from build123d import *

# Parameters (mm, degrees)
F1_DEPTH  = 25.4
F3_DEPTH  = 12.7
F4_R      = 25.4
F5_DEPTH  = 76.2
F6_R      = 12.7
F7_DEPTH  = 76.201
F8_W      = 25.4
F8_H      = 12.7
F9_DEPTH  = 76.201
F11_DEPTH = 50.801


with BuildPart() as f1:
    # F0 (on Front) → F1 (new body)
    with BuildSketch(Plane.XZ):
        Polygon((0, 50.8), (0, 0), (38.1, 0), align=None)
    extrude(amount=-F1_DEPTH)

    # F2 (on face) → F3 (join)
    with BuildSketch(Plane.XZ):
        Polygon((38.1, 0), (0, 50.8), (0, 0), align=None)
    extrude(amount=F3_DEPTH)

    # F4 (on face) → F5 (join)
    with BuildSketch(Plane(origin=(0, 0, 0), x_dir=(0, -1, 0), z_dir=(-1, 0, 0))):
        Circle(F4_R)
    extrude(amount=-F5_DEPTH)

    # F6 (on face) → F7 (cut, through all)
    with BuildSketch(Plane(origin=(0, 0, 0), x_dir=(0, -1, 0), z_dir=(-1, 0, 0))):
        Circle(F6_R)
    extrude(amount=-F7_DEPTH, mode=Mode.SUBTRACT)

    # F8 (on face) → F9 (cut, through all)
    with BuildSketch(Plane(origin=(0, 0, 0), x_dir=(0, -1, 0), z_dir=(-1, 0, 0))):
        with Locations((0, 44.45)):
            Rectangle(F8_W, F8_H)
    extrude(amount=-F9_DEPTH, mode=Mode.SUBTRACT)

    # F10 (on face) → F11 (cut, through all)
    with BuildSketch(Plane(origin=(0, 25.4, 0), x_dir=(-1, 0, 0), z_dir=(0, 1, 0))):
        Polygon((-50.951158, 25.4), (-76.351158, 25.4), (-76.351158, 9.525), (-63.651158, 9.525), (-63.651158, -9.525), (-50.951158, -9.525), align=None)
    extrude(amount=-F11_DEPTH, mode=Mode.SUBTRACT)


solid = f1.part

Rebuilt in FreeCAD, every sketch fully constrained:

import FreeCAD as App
import Part
import Sketcher

V = App.Vector
Q = App.Units.Quantity

doc = App.newDocument("Part")
body = doc.addObject("PartDesign::Body", "Body")

sketch1 = body.newObject("Sketcher::SketchObject", "Sketch")
sketch1.AttachmentSupport = (doc.getObject("XZ_Plane"), [""])
sketch1.MapMode = "FlatFace"
sketch1.addGeometry(Part.LineSegment(V(0, 51, 0), V(0, 0, 0)), False)
sketch1.addGeometry(Part.LineSegment(V(0, 0, 0), V(38, 0, 0)), False)
sketch1.addGeometry(Part.LineSegment(V(38, 0, 0), V(0, 51, 0)), False)
sketch1.addConstraint(Sketcher.Constraint("Coincident", 0, 2, 1, 1))
sketch1.addConstraint(Sketcher.Constraint("Coincident", 1, 2, 2, 1))
sketch1.addConstraint(Sketcher.Constraint("Coincident", 2, 2, 0, 1))
sketch1.addConstraint(Sketcher.Constraint("Vertical", 0))
sketch1.addConstraint(Sketcher.Constraint("Horizontal", 1))
sketch1.addConstraint(Sketcher.Constraint("Coincident", 0, 2, -1, 1))
sketch1.addConstraint(Sketcher.Constraint("DistanceY", 0, 2, 0, 1, Q("2 in")))
sketch1.addConstraint(Sketcher.Constraint("DistanceX", 1, 1, 1, 2, Q("1.5 in")))
pad1 = body.newObject("PartDesign::Pad", "Pad")
pad1.Profile = sketch1
pad1.Length = Q("1 in")
pad1.Reversed = True

sketch2 = body.newObject("Sketcher::SketchObject", "Sketch001")
sketch2.AttachmentSupport = (doc.getObject("XZ_Plane"), [""])
sketch2.MapMode = "FlatFace"
sketch2.addGeometry(Part.LineSegment(V(38, 0, 0), V(0, 51, 0)), False)
sketch2.addGeometry(Part.LineSegment(V(0, 51, 0), V(0, 0, 0)), False)
sketch2.addGeometry(Part.LineSegment(V(0, 0, 0), V(38, 0, 0)), False)
sketch2.addConstraint(Sketcher.Constraint("Coincident", 0, 2, 1, 1))
sketch2.addConstraint(Sketcher.Constraint("Coincident", 1, 2, 2, 1))
sketch2.addConstraint(Sketcher.Constraint("Coincident", 2, 2, 0, 1))
sketch2.addConstraint(Sketcher.Constraint("Vertical", 1))
sketch2.addConstraint(Sketcher.Constraint("Horizontal", 2))
sketch2.addConstraint(Sketcher.Constraint("Coincident", 1, 2, -1, 1))
sketch2.addConstraint(Sketcher.Constraint("DistanceY", 1, 2, 1, 1, Q("2 in")))
sketch2.addConstraint(Sketcher.Constraint("DistanceX", 2, 1, 2, 2, Q("1.5 in")))
pad2 = body.newObject("PartDesign::Pad", "Pad001")
pad2.Profile = sketch2
pad2.Length = Q("0.5 in")

sketch3 = body.newObject("Sketcher::SketchObject", "Sketch002")
sketch3.AttachmentSupport = (doc.getObject("YZ_Plane"), [""])
sketch3.MapMode = "FlatFace"
sketch3.addGeometry(Part.Circle(V(0, 0, 0), V(0, 0, 1), 25), False)
sketch3.addConstraint(Sketcher.Constraint("Coincident", 0, 3, -1, 1))
sketch3.addConstraint(Sketcher.Constraint("Diameter", 0, Q("2 in")))
pad3 = body.newObject("PartDesign::Pad", "Pad002")
pad3.Profile = sketch3
pad3.Length = Q("3 in")

sketch4 = body.newObject("Sketcher::SketchObject", "Sketch003")
sketch4.AttachmentSupport = (doc.getObject("YZ_Plane"), [""])
sketch4.MapMode = "FlatFace"
sketch4.addGeometry(Part.Circle(V(0, 0, 0), V(0, 0, 1), 13), False)
sketch4.addConstraint(Sketcher.Constraint("Coincident", 0, 3, -1, 1))
sketch4.addConstraint(Sketcher.Constraint("Diameter", 0, Q("1 in")))
pocket1 = body.newObject("PartDesign::Pocket", "Pocket")
pocket1.Profile = sketch4
pocket1.Type = "ThroughAll"
pocket1.Reversed = True

sketch5 = body.newObject("Sketcher::SketchObject", "Sketch004")
sketch5.AttachmentSupport = (doc.getObject("YZ_Plane"), [""])
sketch5.MapMode = "FlatFace"
sketch5.addGeometry(Part.LineSegment(V(13, 51, 0), V(13, 38, 0)), False)
sketch5.addGeometry(Part.LineSegment(V(13, 38, 0), V(-13, 38, 0)), False)
sketch5.addGeometry(Part.LineSegment(V(-13, 38, 0), V(-13, 51, 0)), False)
sketch5.addGeometry(Part.LineSegment(V(-13, 51, 0), V(13, 51, 0)), False)
sketch5.addConstraint(Sketcher.Constraint("Coincident", 0, 2, 1, 1))
sketch5.addConstraint(Sketcher.Constraint("Coincident", 1, 2, 2, 1))
sketch5.addConstraint(Sketcher.Constraint("Coincident", 2, 2, 3, 1))
sketch5.addConstraint(Sketcher.Constraint("Coincident", 3, 2, 0, 1))
sketch5.addConstraint(Sketcher.Constraint("Vertical", 0))
sketch5.addConstraint(Sketcher.Constraint("Horizontal", 1))
sketch5.addConstraint(Sketcher.Constraint("Vertical", 2))
sketch5.addConstraint(Sketcher.Constraint("Horizontal", 3))
sketch5.addConstraint(Sketcher.Constraint("DistanceX", 1, 2, 1, 1, Q("1 in")))
sketch5.addConstraint(Sketcher.Constraint("DistanceY", 0, 2, 0, 1, Q("0.5 in")))
sketch5.addConstraint(Sketcher.Constraint("DistanceY", -1, 1, 2, 2, Q("2 in")))
sketch5.addConstraint(Sketcher.Constraint("DistanceX", -1, 1, 0, 2, Q("0.5 in")))
pocket2 = body.newObject("PartDesign::Pocket", "Pocket001")
pocket2.Profile = sketch5
pocket2.Type = "ThroughAll"
pocket2.Reversed = True

sketch6 = body.newObject("Sketcher::SketchObject", "Sketch005")
sketch6.AttachmentSupport = (doc.getObject("XZ_Plane"), [""])
sketch6.MapMode = "FlatFace"
sketch6.AttachmentOffset = App.Placement(V(0, 0, -1 * 25.4), App.Rotation())
sketch6.addGeometry(Part.LineSegment(V(51, 25, 0), V(76, 25, 0)), False)
sketch6.addGeometry(Part.LineSegment(V(76, 25, 0), V(76, 10, 0)), False)
sketch6.addGeometry(Part.LineSegment(V(76, 10, 0), V(64, 10, 0)), False)
sketch6.addGeometry(Part.LineSegment(V(64, 10, 0), V(64, -10, 0)), False)
sketch6.addGeometry(Part.LineSegment(V(64, -10, 0), V(51, -10, 0)), False)
sketch6.addGeometry(Part.LineSegment(V(51, -10, 0), V(51, 25, 0)), False)
sketch6.addConstraint(Sketcher.Constraint("Coincident", 0, 2, 1, 1))
sketch6.addConstraint(Sketcher.Constraint("Coincident", 1, 2, 2, 1))
sketch6.addConstraint(Sketcher.Constraint("Coincident", 2, 2, 3, 1))
sketch6.addConstraint(Sketcher.Constraint("Coincident", 3, 2, 4, 1))
sketch6.addConstraint(Sketcher.Constraint("Coincident", 4, 2, 5, 1))
sketch6.addConstraint(Sketcher.Constraint("Coincident", 5, 2, 0, 1))
sketch6.addConstraint(Sketcher.Constraint("Horizontal", 0))
sketch6.addConstraint(Sketcher.Constraint("Vertical", 1))
sketch6.addConstraint(Sketcher.Constraint("Horizontal", 2))
sketch6.addConstraint(Sketcher.Constraint("Vertical", 3))
sketch6.addConstraint(Sketcher.Constraint("Horizontal", 4))
sketch6.addConstraint(Sketcher.Constraint("Vertical", 5))
sketch6.addConstraint(Sketcher.Constraint("Equal", 2, 4))
sketch6.addConstraint(Sketcher.Constraint("DistanceX", 0, 1, 0, 2, Q("1 in")))
sketch6.addConstraint(Sketcher.Constraint("DistanceY", -1, 1, 0, 2, Q("1 in")))
sketch6.addConstraint(Sketcher.Constraint("DistanceY", 3, 2, 3, 1, Q("0.75 in")))
sketch6.addConstraint(Sketcher.Constraint("DistanceY", 1, 2, 1, 1, Q("0.625 in")))
sketch6.addConstraint(Sketcher.Constraint("DistanceX", -1, 1, 0, 2, 76.351158))
pocket3 = body.newObject("PartDesign::Pocket", "Pocket002")
pocket3.Profile = sketch6
pocket3.Type = "ThroughAll"
pocket3.Reversed = True

doc.recompute()
